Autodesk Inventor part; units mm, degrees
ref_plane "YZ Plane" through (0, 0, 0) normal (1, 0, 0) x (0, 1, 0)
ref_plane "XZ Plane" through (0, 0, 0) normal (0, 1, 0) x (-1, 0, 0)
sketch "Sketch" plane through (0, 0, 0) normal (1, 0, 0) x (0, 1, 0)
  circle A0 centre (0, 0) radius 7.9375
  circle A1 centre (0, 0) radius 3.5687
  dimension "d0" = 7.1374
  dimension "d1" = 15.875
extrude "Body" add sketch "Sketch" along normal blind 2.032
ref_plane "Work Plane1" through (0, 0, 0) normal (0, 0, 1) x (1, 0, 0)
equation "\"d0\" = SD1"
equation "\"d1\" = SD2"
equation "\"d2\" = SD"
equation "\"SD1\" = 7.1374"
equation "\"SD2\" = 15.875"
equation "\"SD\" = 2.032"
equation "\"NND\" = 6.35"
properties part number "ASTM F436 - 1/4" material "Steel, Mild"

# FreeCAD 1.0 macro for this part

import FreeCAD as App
import Part
import Sketcher
Q = App.Units.Quantity

doc = App.newDocument("Part")
params = doc.addObject("Spreadsheet::Sheet", "Params")
for row, (alias, value) in enumerate([
    ("sketch1_diameter", "0.625 in"),
    ("sketch1_diameter2", "0.281 in"),
    ("pad1_length", "0.08 in"),
], start=1):
    params.set(f"A{row}", alias)
    params.set(f"B{row}", "=" + value)
    params.setAlias(f"B{row}", alias)

body = doc.addObject("PartDesign::Body", "Body")

# Sketch on YZ plane
sketch1 = doc.addObject("Sketcher::SketchObject", "Sketch")
body.addObject(sketch1)
sketch1.AttachmentSupport = (doc.YZ_Plane, [""])
sketch1.MapMode = "FlatFace"
sketch1.addGeometry(Part.Circle(App.Vector(0, 0, 0), App.Vector(0, 0, 1), 7.9), False)
sketch1.addGeometry(Part.Circle(App.Vector(0, 0, 0), App.Vector(0, 0, 1), 3.6), False)
sketch1.addConstraint(Sketcher.Constraint("Coincident", 0, 3, -1, 1))
sketch1.addConstraint(Sketcher.Constraint("Coincident", 1, 3, -1, 1))
sketch1.addConstraint(Sketcher.Constraint("Diameter", 0, Q("0.625 in")))
sketch1.addConstraint(Sketcher.Constraint("Diameter", 1, Q("0.281 in")))
sketch1.setExpression("Constraints[2]", "Params.sketch1_diameter")
sketch1.setExpression("Constraints[3]", "Params.sketch1_diameter2")
pad1 = doc.addObject("PartDesign::Pad", "Pad")
body.addObject(pad1)
pad1.Profile = sketch1
pad1.setExpression("Length", "Params.pad1_length")

doc.recompute()
